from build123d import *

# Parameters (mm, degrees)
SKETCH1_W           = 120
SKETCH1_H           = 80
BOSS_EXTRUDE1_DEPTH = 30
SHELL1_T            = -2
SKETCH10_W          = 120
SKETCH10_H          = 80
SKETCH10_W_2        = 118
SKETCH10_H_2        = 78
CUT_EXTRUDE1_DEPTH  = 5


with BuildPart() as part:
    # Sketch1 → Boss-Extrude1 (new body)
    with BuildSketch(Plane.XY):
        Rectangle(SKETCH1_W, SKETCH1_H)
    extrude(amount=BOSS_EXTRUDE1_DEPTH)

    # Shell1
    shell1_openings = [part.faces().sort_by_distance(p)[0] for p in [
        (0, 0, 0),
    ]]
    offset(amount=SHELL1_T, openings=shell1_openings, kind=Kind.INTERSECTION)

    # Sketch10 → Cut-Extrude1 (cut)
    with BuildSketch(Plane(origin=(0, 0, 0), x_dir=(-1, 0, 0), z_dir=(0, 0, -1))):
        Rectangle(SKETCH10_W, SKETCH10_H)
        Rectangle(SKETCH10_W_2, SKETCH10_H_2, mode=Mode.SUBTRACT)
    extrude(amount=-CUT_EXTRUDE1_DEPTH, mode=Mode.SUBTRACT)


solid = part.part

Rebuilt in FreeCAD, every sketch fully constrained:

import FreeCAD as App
import Part
import Sketcher
from FreeCAD import Vector
Q = App.Units.Quantity


def faces_at(feature, points):
    """Names of the faces that lie closest to the given points."""
    faces = feature.Shape.Faces
    near = lambda p: min(range(len(faces)), key=lambda i: faces[i].distToShape(Part.Vertex(*p))[0])
    return sorted({f"Face{near(p) + 1}" for p in points})

doc = App.newDocument("Part")
body = doc.addObject("PartDesign::Body", "Body")

# Sketch on XY plane
sketch1 = body.newObject("Sketcher::SketchObject", "Sketch")
sketch1.AttachmentSupport = (doc.getObject("XY_Plane"), [""])
sketch1.MapMode = "FlatFace"
sketch1.addGeometry([
    Part.LineSegment(Vector(-60, 40, 0), Vector(-60, -40, 0)),
    Part.LineSegment(Vector(-60, -40, 0), Vector(60, -40, 0)),
    Part.LineSegment(Vector(60, -40, 0), Vector(60, 40, 0)),
    Part.LineSegment(Vector(60, 40, 0), Vector(-60, 40, 0)),
], False)
sketch1.addConstraint([
    Sketcher.Constraint("Coincident", 0, 2, 1, 1),
    Sketcher.Constraint("Coincident", 1, 2, 2, 1),
    Sketcher.Constraint("Coincident", 2, 2, 3, 1),
    Sketcher.Constraint("Coincident", 3, 2, 0, 1),
    Sketcher.Constraint("Vertical", 0),
    Sketcher.Constraint("Horizontal", 1),
    Sketcher.Constraint("Vertical", 2),
    Sketcher.Constraint("Horizontal", 3),
    Sketcher.Constraint("Symmetric", 0, 2, 2, 2, -1, 1),
    Sketcher.Constraint("DistanceX", 1, 1, 1, 2, Q("120 mm")),
    Sketcher.Constraint("DistanceY", 0, 2, 0, 1, Q("80 mm")),
])
pad1 = body.newObject("PartDesign::Pad", "Pad")
pad1.Profile = sketch1
pad1.Length = 30
doc.recompute()

thickness = body.newObject("PartDesign::Thickness", "Thickness")
thickness.Base = (pad1, faces_at(pad1, [(0, 0, 0)]))
thickness.Value = 2
thickness.Reversed = True
thickness.Join = "Intersection"

# Sketch on XY plane
sketch2 = body.newObject("Sketcher::SketchObject", "Sketch001")
sketch2.AttachmentSupport = (doc.getObject("XY_Plane"), [""])
sketch2.MapMode = "FlatFace"
sketch2.addGeometry([
    Part.LineSegment(Vector(60, 40, 0), Vector(60, -40, 0)),  # 0
    Part.LineSegment(Vector(60, -40, 0), Vector(-60, -40, 0)),  # 1
    Part.LineSegment(Vector(-60, -40, 0), Vector(-60, 40, 0)),  # 2
    Part.LineSegment(Vector(-60, 40, 0), Vector(60, 40, 0)),  # 3
    Part.LineSegment(Vector(-59, -39, 0), Vector(59, -39, 0)),  # 4
    Part.LineSegment(Vector(59, -39, 0), Vector(59, 39, 0)),  # 5
    Part.LineSegment(Vector(59, 39, 0), Vector(-59, 39, 0)),  # 6
    Part.LineSegment(Vector(-59, 39, 0), Vector(-59, -39, 0)),  # 7
], False)
sketch2.addConstraint([
    Sketcher.Constraint("Coincident", 0, 2, 1, 1),
    Sketcher.Constraint("Coincident", 1, 2, 2, 1),
    Sketcher.Constraint("Coincident", 2, 2, 3, 1),
    Sketcher.Constraint("Coincident", 3, 2, 0, 1),
    Sketcher.Constraint("Coincident", 4, 2, 5, 1),
    Sketcher.Constraint("Coincident", 5, 2, 6, 1),
    Sketcher.Constraint("Coincident", 6, 2, 7, 1),
    Sketcher.Constraint("Coincident", 7, 2, 4, 1),
    Sketcher.Constraint("Vertical", 0),
    Sketcher.Constraint("Horizontal", 1),
    Sketcher.Constraint("Vertical", 2),
    Sketcher.Constraint("Horizontal", 3),
    Sketcher.Constraint("Horizontal", 4),
    Sketcher.Constraint("Vertical", 5),
    Sketcher.Constraint("Horizontal", 6),
    Sketcher.Constraint("Vertical", 7),
    Sketcher.Constraint("Symmetric", 0, 2, 2, 2, -1, 1),
    Sketcher.Constraint("Symmetric", 4, 2, 6, 2, -1, 1),
    Sketcher.Constraint("DistanceX", 1, 2, 1, 1, Q("120 mm")),
    Sketcher.Constraint("DistanceX", 4, 1, 4, 2, Q("118 mm")),
    Sketcher.Constraint("DistanceY", 0, 2, 0, 1, Q("80 mm")),
    Sketcher.Constraint("DistanceY", 5, 1, 5, 2, Q("78 mm")),
])
pocket1 = body.newObject("PartDesign::Pocket", "Pocket")
pocket1.Profile = sketch2
pocket1.Length = 5
pocket1.Reversed = True

doc.recompute()
